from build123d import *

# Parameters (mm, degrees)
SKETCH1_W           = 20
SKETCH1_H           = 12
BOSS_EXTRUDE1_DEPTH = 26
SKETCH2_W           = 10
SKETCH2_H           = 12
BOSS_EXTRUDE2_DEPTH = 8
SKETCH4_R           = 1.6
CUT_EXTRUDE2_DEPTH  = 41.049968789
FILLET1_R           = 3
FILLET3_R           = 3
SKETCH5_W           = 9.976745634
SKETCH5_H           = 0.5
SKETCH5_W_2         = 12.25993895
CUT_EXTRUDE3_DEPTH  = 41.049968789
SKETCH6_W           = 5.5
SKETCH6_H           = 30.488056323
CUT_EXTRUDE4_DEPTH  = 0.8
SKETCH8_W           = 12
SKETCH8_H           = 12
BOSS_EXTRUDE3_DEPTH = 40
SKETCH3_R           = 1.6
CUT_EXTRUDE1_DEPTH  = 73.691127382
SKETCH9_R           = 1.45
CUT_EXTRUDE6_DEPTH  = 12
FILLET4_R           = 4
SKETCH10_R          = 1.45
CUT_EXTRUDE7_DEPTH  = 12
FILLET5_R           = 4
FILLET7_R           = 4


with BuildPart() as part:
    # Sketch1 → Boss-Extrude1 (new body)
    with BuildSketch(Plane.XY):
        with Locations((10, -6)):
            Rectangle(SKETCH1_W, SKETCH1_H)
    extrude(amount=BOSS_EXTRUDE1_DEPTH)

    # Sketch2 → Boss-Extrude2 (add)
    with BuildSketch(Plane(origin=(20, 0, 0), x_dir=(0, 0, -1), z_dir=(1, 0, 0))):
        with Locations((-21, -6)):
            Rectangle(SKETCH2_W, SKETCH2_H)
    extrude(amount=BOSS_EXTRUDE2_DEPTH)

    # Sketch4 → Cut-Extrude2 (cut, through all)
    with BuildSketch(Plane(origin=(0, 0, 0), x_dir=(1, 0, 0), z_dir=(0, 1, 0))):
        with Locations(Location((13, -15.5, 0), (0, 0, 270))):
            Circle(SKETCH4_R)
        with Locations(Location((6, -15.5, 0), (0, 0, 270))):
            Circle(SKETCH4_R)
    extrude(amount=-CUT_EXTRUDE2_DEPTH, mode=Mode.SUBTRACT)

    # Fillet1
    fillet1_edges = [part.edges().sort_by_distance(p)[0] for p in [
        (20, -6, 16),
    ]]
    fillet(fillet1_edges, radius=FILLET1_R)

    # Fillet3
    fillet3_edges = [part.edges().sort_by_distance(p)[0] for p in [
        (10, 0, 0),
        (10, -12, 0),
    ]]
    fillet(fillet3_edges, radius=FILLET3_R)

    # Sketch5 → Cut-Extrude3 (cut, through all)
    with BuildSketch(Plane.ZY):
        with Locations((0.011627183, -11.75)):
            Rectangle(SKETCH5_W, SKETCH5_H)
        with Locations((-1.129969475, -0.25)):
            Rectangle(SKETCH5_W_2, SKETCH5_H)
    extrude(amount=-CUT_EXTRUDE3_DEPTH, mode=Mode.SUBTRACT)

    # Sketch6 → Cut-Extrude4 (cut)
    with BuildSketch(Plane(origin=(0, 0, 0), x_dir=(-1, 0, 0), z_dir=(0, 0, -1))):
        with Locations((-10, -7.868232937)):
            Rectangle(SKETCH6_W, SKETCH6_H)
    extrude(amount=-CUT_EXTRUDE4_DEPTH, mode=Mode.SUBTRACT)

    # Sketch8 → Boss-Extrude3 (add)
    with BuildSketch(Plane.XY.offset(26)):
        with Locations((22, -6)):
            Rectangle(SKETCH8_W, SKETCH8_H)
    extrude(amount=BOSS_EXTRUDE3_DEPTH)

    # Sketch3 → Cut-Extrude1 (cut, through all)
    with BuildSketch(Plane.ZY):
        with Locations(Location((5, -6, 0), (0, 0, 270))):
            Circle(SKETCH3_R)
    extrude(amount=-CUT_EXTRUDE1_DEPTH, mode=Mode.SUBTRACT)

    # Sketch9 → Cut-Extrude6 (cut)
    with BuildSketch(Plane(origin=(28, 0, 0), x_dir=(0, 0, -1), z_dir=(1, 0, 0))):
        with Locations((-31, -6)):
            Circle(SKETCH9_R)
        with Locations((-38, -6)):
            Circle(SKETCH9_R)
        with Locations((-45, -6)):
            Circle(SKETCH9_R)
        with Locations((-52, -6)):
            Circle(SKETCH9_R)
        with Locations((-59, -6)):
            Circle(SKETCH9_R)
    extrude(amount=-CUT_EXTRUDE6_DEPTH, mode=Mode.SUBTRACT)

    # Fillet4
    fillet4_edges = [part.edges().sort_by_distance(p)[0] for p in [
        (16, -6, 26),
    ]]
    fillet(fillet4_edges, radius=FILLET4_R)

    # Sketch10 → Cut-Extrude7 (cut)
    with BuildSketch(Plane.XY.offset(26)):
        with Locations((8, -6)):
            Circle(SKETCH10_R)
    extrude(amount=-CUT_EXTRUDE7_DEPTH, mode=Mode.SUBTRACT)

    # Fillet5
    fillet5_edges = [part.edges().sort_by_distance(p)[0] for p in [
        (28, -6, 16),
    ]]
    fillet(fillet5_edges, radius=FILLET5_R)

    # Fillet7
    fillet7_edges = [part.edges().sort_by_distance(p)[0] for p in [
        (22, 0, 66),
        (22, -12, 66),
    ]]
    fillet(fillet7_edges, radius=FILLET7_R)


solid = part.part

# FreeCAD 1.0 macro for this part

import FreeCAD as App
import Part
import Sketcher

V = App.Vector
Q = App.Units.Quantity


def edges_at(feature, points):
    """Names of the edges that pass closest to the given points."""
    edges = feature.Shape.Edges
    near = lambda p: min(range(len(edges)), key=lambda i: edges[i].distToShape(Part.Vertex(*p))[0])
    return sorted({f"Edge{near(p) + 1}" for p in points})

doc = App.newDocument("Part")
body = doc.addObject("PartDesign::Body", "Body")

sketch1 = body.newObject("Sketcher::SketchObject", "Sketch")
sketch1.AttachmentSupport = (doc.getObject("XY_Plane"), [""])
sketch1.MapMode = "FlatFace"
sketch1.addGeometry([
    Part.LineSegment(V(0, 0, 0), V(0, -12, 0)),
    Part.LineSegment(V(0, -12, 0), V(20, -12, 0)),
    Part.LineSegment(V(20, -12, 0), V(20, 0, 0)),
    Part.LineSegment(V(20, 0, 0), V(0, 0, 0)),
], False)
sketch1.addConstraint([
    Sketcher.Constraint("Coincident", 0, 2, 1, 1),
    Sketcher.Constraint("Coincident", 1, 2, 2, 1),
    Sketcher.Constraint("Coincident", 2, 2, 3, 1),
    Sketcher.Constraint("Coincident", 3, 2, 0, 1),
    Sketcher.Constraint("Vertical", 0),
    Sketcher.Constraint("Horizontal", 1),
    Sketcher.Constraint("Vertical", 2),
    Sketcher.Constraint("Horizontal", 3),
    Sketcher.Constraint("Coincident", 3, 2, -1, 1),
    Sketcher.Constraint("DistanceX", 1, 1, 1, 2, Q("20 mm")),
    Sketcher.Constraint("DistanceY", 0, 2, 0, 1, Q("12 mm")),
])
pad1 = body.newObject("PartDesign::Pad", "Pad")
pad1.Profile = sketch1
pad1.Length = 26

sketch2 = body.newObject("Sketcher::SketchObject", "Sketch001")
sketch2.AttachmentSupport = (doc.getObject("YZ_Plane"), [""])
sketch2.MapMode = "FlatFace"
sketch2.AttachmentOffset = App.Placement(V(0, 0, 20), App.Rotation())
sketch2.addGeometry([
    Part.LineSegment(V(0, 26, 0), V(-12, 26, 0)),
    Part.LineSegment(V(-12, 26, 0), V(-12, 16, 0)),
    Part.LineSegment(V(-12, 16, 0), V(0, 16, 0)),
    Part.LineSegment(V(0, 16, 0), V(0, 26, 0)),
], False)
sketch2.addConstraint([
    Sketcher.Constraint("Coincident", 0, 2, 1, 1),
    Sketcher.Constraint("Coincident", 1, 2, 2, 1),
    Sketcher.Constraint("Coincident", 2, 2, 3, 1),
    Sketcher.Constraint("Coincident", 3, 2, 0, 1),
    Sketcher.Constraint("Horizontal", 0),
    Sketcher.Constraint("Vertical", 1),
    Sketcher.Constraint("Horizontal", 2),
    Sketcher.Constraint("Vertical", 3),
    Sketcher.Constraint("PointOnObject", 2, 2, -2),
    Sketcher.Constraint("DistanceX", 0, 2, 0, 1, Q("12 mm")),
    Sketcher.Constraint("DistanceY", 1, 2, 1, 1, Q("10 mm")),
    Sketcher.Constraint("DistanceY", -1, 1, 0, 2, Q("26 mm")),
])
pad2 = body.newObject("PartDesign::Pad", "Pad001")
pad2.Profile = sketch2
pad2.Length = 8

sketch3 = body.newObject("Sketcher::SketchObject", "Sketch002")
sketch3.AttachmentSupport = (doc.getObject("XZ_Plane"), [""])
sketch3.MapMode = "FlatFace"
sketch3.addGeometry([
    Part.Circle(V(13, 15.5, 0), V(0, 0, 1), 1.6),
    Part.Circle(V(6, 15.5, 0), V(0, 0, 1), 1.6),
], False)
sketch3.addConstraint([
    Sketcher.Constraint("Equal", 0, 1),
    Sketcher.Constraint("Horizontal", 0, 3, 1, 3),
    Sketcher.Constraint("Diameter", 0, Q("3.2 mm")),
    Sketcher.Constraint("DistanceX", -1, 1, 0, 3, Q("13 mm")),
    Sketcher.Constraint("DistanceX", -1, 1, 1, 3, Q("6 mm")),
    Sketcher.Constraint("DistanceY", -1, 1, 0, 3, Q("15.5 mm")),
])
pocket1 = body.newObject("PartDesign::Pocket", "Pocket")
pocket1.Profile = sketch3
pocket1.Type = "ThroughAll"
pocket1.Reversed = True
doc.recompute()

fillet = body.newObject("PartDesign::Fillet", "Fillet")
fillet.Base = (pocket1, edges_at(pocket1, [(20, -6, 16)]))
fillet.Radius = 3
doc.recompute()

fillet2 = body.newObject("PartDesign::Fillet", "Fillet001")
fillet2.Base = (fillet, edges_at(fillet, [(10, 0, 0), (10, -12, 0)]))
fillet2.Radius = 3

sketch4 = body.newObject("Sketcher::SketchObject", "Sketch003")
sketch4.AttachmentSupport = (doc.getObject("YZ_Plane"), [""])
sketch4.MapMode = "FlatFace"
sketch4.addGeometry([
    Part.LineSegment(V(-11.5, -5, 0), V(-12, -5, 0)),
    Part.LineSegment(V(-12, -5, 0), V(-12, 5, 0)),
    Part.LineSegment(V(-12, 5, 0), V(-11.5, 5, 0)),
    Part.LineSegment(V(-11.5, 5, 0), V(-11.5, -5, 0)),
    Part.LineSegment(V(0, -7.3, 0), V(-0.5, -7.3, 0)),
    Part.LineSegment(V(-0.5, -7.3, 0), V(-0.5, 5, 0)),
    Part.LineSegment(V(-0.5, 5, 0), V(0, 5, 0)),
    Part.LineSegment(V(0, 5, 0), V(0, -7.3, 0)),
], False)
sketch4.addConstraint([
    Sketcher.Constraint("Coincident", 0, 2, 1, 1),
    Sketcher.Constraint("Coincident", 1, 2, 2, 1),
    Sketcher.Constraint("Coincident", 2, 2, 3, 1),
    Sketcher.Constraint("Coincident", 3, 2, 0, 1),
    Sketcher.Constraint("Coincident", 4, 2, 5, 1),
    Sketcher.Constraint("Coincident", 5, 2, 6, 1),
    Sketcher.Constraint("Coincident", 6, 2, 7, 1),
    Sketcher.Constraint("Coincident", 7, 2, 4, 1),
    Sketcher.Constraint("Horizontal", 0),
    Sketcher.Constraint("Vertical", 1),
    Sketcher.Constraint("Horizontal", 2),
    Sketcher.Constraint("Vertical", 3),
    Sketcher.Constraint("Horizontal", 4),
    Sketcher.Constraint("Vertical", 5),
    Sketcher.Constraint("Horizontal", 6),
    Sketcher.Constraint("Vertical", 7),
    Sketcher.Constraint("PointOnObject", 6, 2, -2),
    Sketcher.Constraint("Horizontal", 2, 2, 5, 2),
    Sketcher.Constraint("Equal", 2, 4),
    Sketcher.Constraint("DistanceX", 0, 2, 0, 1, Q("0.5 mm")),
    Sketcher.Constraint("DistanceX", 0, 2, -1, 1, Q("12 mm")),
    Sketcher.Constraint("DistanceY", -1, 1, 1, 2, Q("5 mm")),
    Sketcher.Constraint("DistanceY", 5, 1, 5, 2, Q("12.259939 mm")),
    Sketcher.Constraint("DistanceY", 1, 1, 1, 2, Q("9.976746 mm")),
])
pocket2 = body.newObject("PartDesign::Pocket", "Pocket001")
pocket2.Profile = sketch4
pocket2.Type = "ThroughAll"
pocket2.Reversed = True

sketch5 = body.newObject("Sketcher::SketchObject", "Sketch004")
sketch5.AttachmentSupport = (doc.getObject("XY_Plane"), [""])
sketch5.MapMode = "FlatFace"
sketch5.addGeometry([
    Part.LineSegment(V(13, 7, 0), V(13, -23, 0)),
    Part.LineSegment(V(13, -23, 0), V(7, -23, 0)),
    Part.LineSegment(V(7, -23, 0), V(7, 7, 0)),
    Part.LineSegment(V(7, 7, 0), V(13, 7, 0)),
], False)
sketch5.addConstraint([
    Sketcher.Constraint("Coincident", 0, 2, 1, 1),
    Sketcher.Constraint("Coincident", 1, 2, 2, 1),
    Sketcher.Constraint("Coincident", 2, 2, 3, 1),
    Sketcher.Constraint("Coincident", 3, 2, 0, 1),
    Sketcher.Constraint("Vertical", 0),
    Sketcher.Constraint("Horizontal", 1),
    Sketcher.Constraint("Vertical", 2),
    Sketcher.Constraint("Horizontal", 3),
    Sketcher.Constraint("DistanceX", 1, 2, 1, 1, Q("5.5 mm")),
    Sketcher.Constraint("DistanceX", -1, 1, 0, 2, Q("12.75 mm")),
    Sketcher.Constraint("DistanceY", 0, 2, 0, 1, Q("30.488056 mm")),
    Sketcher.Constraint("DistanceY", 0, 2, -1, 1, Q("23.112261 mm")),
])
pocket3 = body.newObject("PartDesign::Pocket", "Pocket002")
pocket3.Profile = sketch5
pocket3.Length = 0.8
pocket3.Reversed = True

sketch6 = body.newObject("Sketcher::SketchObject", "Sketch005")
sketch6.AttachmentSupport = (doc.getObject("XY_Plane"), [""])
sketch6.MapMode = "FlatFace"
sketch6.AttachmentOffset = App.Placement(V(0, 0, 26), App.Rotation())
sketch6.addGeometry([
    Part.LineSegment(V(16, 0, 0), V(16, -12, 0)),
    Part.LineSegment(V(16, -12, 0), V(28, -12, 0)),
    Part.LineSegment(V(28, -12, 0), V(28, 0, 0)),
    Part.LineSegment(V(28, 0, 0), V(16, 0, 0)),
], False)
sketch6.addConstraint([
    Sketcher.Constraint("Coincident", 0, 2, 1, 1),
    Sketcher.Constraint("Coincident", 1, 2, 2, 1),
    Sketcher.Constraint("Coincident", 2, 2, 3, 1),
    Sketcher.Constraint("Coincident", 3, 2, 0, 1),
    Sketcher.Constraint("Vertical", 0),
    Sketcher.Constraint("Horizontal", 1),
    Sketcher.Constraint("Vertical", 2),
    Sketcher.Constraint("Horizontal", 3),
    Sketcher.Constraint("PointOnObject", 2, 2, -1),
    Sketcher.Constraint("Equal", 3, 0),
    Sketcher.Constraint("DistanceX", 1, 1, 1, 2, Q("12 mm")),
    Sketcher.Constraint("DistanceX", -1, 1, 0, 2, Q("16 mm")),
])
pad3 = body.newObject("PartDesign::Pad", "Pad002")
pad3.Profile = sketch6
pad3.Length = 40

sketch7 = body.newObject("Sketcher::SketchObject", "Sketch006")
sketch7.AttachmentSupport = (doc.getObject("YZ_Plane"), [""])
sketch7.MapMode = "FlatFace"
sketch7.addGeometry(Part.Circle(V(-6, 5, 0), V(0, 0, 1), 1.6), False)
sketch7.addConstraint([
    Sketcher.Constraint("Diameter", 0, Q("3.2 mm")),
    Sketcher.Constraint("DistanceX", 0, 3, -1, 1, Q("6 mm")),
    Sketcher.Constraint("DistanceY", -1, 1, 0, 3, Q("5 mm")),
])
pocket4 = body.newObject("PartDesign::Pocket", "Pocket003")
pocket4.Profile = sketch7
pocket4.Type = "ThroughAll"
pocket4.Reversed = True

sketch8 = body.newObject("Sketcher::SketchObject", "Sketch007")
sketch8.AttachmentSupport = (doc.getObject("YZ_Plane"), [""])
sketch8.MapMode = "FlatFace"
sketch8.AttachmentOffset = App.Placement(V(0, 0, 28), App.Rotation())
sketch8.addGeometry([
    Part.Circle(V(-6, 31, 0), V(0, 0, 1), 1.4),
    Part.Circle(V(-6, 38, 0), V(0, 0, 1), 1.4),
    Part.Circle(V(-6, 45, 0), V(0, 0, 1), 1.4),
    Part.Circle(V(-6, 52, 0), V(0, 0, 1), 1.4),
    Part.Circle(V(-6, 59, 0), V(0, 0, 1), 1.4),
], False)
sketch8.addConstraint([
    Sketcher.Constraint("Equal", 0, 1),
    Sketcher.Constraint("Equal", 1, 2),
    Sketcher.Constraint("Equal", 2, 3),
    Sketcher.Constraint("Equal", 3, 4),
    Sketcher.Constraint("Vertical", 0, 3, 1, 3),
    Sketcher.Constraint("Vertical", 1, 3, 2, 3),
    Sketcher.Constraint("Vertical", 2, 3, 3, 3),
    Sketcher.Constraint("Vertical", 3, 3, 4, 3),
    Sketcher.Constraint("Diameter", 0, Q("2.9 mm")),
    Sketcher.Constraint("DistanceX", 0, 3, -1, 1, Q("6 mm")),
    Sketcher.Constraint("DistanceY", -1, 1, 0, 3, Q("31 mm")),
    Sketcher.Constraint("DistanceY", -1, 1, 1, 3, Q("38 mm")),
    Sketcher.Constraint("DistanceY", -1, 1, 2, 3, Q("45 mm")),
    Sketcher.Constraint("DistanceY", -1, 1, 3, 3, Q("52 mm")),
    Sketcher.Constraint("DistanceY", -1, 1, 4, 3, Q("59 mm")),
])
pocket5 = body.newObject("PartDesign::Pocket", "Pocket004")
pocket5.Profile = sketch8
pocket5.Length = 12
doc.recompute()

fillet3 = body.newObject("PartDesign::Fillet", "Fillet002")
fillet3.Base = (pocket5, edges_at(pocket5, [(16, -6, 26)]))
fillet3.Radius = 4

sketch9 = body.newObject("Sketcher::SketchObject", "Sketch008")
sketch9.AttachmentSupport = (doc.getObject("XY_Plane"), [""])
sketch9.MapMode = "FlatFace"
sketch9.AttachmentOffset = App.Placement(V(0, 0, 26), App.Rotation())
sketch9.addGeometry(Part.Circle(V(8, -6, 0), V(0, 0, 1), 1.4), False)
sketch9.addConstraint([
    Sketcher.Constraint("Diameter", 0, Q("2.9 mm")),
    Sketcher.Constraint("DistanceX", -1, 1, 0, 3, Q("8 mm")),
    Sketcher.Constraint("DistanceY", 0, 3, -1, 1, Q("6 mm")),
])
pocket6 = body.newObject("PartDesign::Pocket", "Pocket005")
pocket6.Profile = sketch9
pocket6.Length = 12
doc.recompute()

fillet4 = body.newObject("PartDesign::Fillet", "Fillet003")
fillet4.Base = (pocket6, edges_at(pocket6, [(28, -6, 16)]))
fillet4.Radius = 4
doc.recompute()

fillet5 = body.newObject("PartDesign::Fillet", "Fillet004")
fillet5.Base = (fillet4, edges_at(fillet4, [(22, 0, 66), (22, -12, 66)]))
fillet5.Radius = 4

doc.recompute()
